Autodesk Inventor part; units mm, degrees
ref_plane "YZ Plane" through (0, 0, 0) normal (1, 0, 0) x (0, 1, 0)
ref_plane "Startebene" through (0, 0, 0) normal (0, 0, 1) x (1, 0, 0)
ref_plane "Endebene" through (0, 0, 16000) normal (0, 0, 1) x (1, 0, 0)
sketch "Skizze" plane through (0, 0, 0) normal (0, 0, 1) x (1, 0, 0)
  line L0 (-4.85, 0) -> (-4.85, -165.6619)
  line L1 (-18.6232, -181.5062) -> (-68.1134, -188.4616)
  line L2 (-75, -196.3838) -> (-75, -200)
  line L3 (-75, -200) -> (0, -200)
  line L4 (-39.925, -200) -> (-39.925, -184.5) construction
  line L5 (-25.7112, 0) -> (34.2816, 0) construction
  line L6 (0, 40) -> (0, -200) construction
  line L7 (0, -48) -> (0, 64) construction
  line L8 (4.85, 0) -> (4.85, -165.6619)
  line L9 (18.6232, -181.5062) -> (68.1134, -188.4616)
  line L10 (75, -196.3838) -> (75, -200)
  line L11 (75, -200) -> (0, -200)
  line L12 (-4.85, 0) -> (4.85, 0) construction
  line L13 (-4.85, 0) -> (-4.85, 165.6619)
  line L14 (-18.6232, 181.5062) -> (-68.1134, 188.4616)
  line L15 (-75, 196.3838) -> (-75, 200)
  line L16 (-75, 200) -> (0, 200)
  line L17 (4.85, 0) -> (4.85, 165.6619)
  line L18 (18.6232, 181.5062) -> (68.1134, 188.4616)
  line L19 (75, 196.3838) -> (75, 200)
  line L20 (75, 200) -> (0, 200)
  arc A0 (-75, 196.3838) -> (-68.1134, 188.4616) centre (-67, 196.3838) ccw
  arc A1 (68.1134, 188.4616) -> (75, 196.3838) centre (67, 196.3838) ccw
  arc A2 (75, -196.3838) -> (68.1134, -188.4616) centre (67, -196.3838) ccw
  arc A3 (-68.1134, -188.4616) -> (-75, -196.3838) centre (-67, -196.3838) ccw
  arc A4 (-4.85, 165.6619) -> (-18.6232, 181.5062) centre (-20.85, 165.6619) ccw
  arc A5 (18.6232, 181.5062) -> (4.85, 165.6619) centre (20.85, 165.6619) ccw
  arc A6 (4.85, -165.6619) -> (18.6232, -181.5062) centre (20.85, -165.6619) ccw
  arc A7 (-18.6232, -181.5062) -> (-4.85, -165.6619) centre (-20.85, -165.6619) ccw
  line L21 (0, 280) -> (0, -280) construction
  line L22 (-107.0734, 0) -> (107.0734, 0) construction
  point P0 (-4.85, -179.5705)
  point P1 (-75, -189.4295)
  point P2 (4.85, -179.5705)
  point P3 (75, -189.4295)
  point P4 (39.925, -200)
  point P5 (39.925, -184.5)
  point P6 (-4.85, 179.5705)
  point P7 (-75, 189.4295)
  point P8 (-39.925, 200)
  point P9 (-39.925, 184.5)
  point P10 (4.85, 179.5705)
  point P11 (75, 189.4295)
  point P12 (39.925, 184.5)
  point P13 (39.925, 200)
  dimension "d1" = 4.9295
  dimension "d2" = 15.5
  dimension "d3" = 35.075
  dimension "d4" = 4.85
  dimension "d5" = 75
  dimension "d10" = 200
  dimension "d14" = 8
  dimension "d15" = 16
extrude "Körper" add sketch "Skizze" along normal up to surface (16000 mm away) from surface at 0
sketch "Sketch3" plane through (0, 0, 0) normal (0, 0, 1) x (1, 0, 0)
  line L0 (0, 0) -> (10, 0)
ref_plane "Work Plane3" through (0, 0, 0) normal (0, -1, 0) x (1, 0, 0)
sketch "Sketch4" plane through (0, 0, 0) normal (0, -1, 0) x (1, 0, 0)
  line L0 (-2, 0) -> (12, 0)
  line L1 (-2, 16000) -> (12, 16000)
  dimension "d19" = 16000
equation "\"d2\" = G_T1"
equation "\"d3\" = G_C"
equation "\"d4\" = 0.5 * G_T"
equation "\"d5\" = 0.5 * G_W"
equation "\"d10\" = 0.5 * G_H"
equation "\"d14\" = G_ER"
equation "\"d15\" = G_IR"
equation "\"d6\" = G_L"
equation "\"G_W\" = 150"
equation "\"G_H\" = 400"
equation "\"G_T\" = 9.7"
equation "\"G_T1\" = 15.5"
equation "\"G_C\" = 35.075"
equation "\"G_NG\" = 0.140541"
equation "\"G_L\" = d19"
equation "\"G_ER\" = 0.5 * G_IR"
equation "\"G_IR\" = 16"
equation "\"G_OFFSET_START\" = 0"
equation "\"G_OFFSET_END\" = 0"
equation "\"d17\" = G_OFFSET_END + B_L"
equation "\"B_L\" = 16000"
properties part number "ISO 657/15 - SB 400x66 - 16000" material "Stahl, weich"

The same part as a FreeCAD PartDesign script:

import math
import FreeCAD as App
import Part
import Sketcher
Q = App.Units.Quantity

doc = App.newDocument("Part")
body = doc.addObject("PartDesign::Body", "Body")

sketch1 = body.newObject("Sketcher::SketchObject", "Sketch")
sketch1.AttachmentSupport = (doc.getObject("XY_Plane"), [""])
sketch1.MapMode = "FlatFace"
sketch1.addGeometry([
    Part.LineSegment(App.Vector(-4.8, 165.7, 0), App.Vector(-4.8, -165.7, 0)),
    Part.ArcOfCircle(Part.Circle(App.Vector(-20.9, -165.7, 0), App.Vector(0, 0, 1), 16), math.radians(-82), math.radians(0)),
    Part.LineSegment(App.Vector(-18.6, -181.5, 0), App.Vector(-68.1, -188.5, 0)),
    Part.ArcOfCircle(Part.Circle(App.Vector(-67, -196.4, 0), App.Vector(0, 0, 1), 8), math.radians(98), math.radians(180)),
    Part.LineSegment(App.Vector(-75, -196.4, 0), App.Vector(-75, -200, 0)),
    Part.LineSegment(App.Vector(-75, -200, 0), App.Vector(75, -200, 0)),
    Part.LineSegment(App.Vector(75, -200, 0), App.Vector(75, -196.4, 0)),
    Part.ArcOfCircle(Part.Circle(App.Vector(67, -196.4, 0), App.Vector(0, 0, 1), 8), math.radians(0), math.radians(82)),
    Part.LineSegment(App.Vector(68.1, -188.5, 0), App.Vector(18.6, -181.5, 0)),
    Part.ArcOfCircle(Part.Circle(App.Vector(20.9, -165.7, 0), App.Vector(0, 0, 1), 16), math.radians(180), math.radians(262)),
    Part.LineSegment(App.Vector(4.8, -165.7, 0), App.Vector(4.8, 165.7, 0)),
    Part.ArcOfCircle(Part.Circle(App.Vector(20.9, 165.7, 0), App.Vector(0, 0, 1), 16), math.radians(98), math.radians(180)),
    Part.LineSegment(App.Vector(18.6, 181.5, 0), App.Vector(68.1, 188.5, 0)),
    Part.ArcOfCircle(Part.Circle(App.Vector(67, 196.4, 0), App.Vector(0, 0, 1), 8), math.radians(-82), math.radians(0)),
    Part.LineSegment(App.Vector(75, 196.4, 0), App.Vector(75, 200, 0)),
    Part.LineSegment(App.Vector(75, 200, 0), App.Vector(-75, 200, 0)),
    Part.LineSegment(App.Vector(-75, 200, 0), App.Vector(-75, 196.4, 0)),
    Part.ArcOfCircle(Part.Circle(App.Vector(-67, 196.4, 0), App.Vector(0, 0, 1), 8), math.radians(180), math.radians(262)),
    Part.LineSegment(App.Vector(-68.1, 188.5, 0), App.Vector(-18.6, 181.5, 0)),
    Part.ArcOfCircle(Part.Circle(App.Vector(-20.9, 165.7, 0), App.Vector(0, 0, 1), 16), math.radians(0), math.radians(82)),
], False)
sketch1.addConstraint([
    Sketcher.Constraint("Tangent", 0, 2, 1, 2),
    Sketcher.Constraint("Tangent", 1, 1, 2, 1),
    Sketcher.Constraint("Tangent", 2, 2, 3, 1),
    Sketcher.Constraint("Tangent", 3, 2, 4, 1),
    Sketcher.Constraint("Coincident", 4, 2, 5, 1),
    Sketcher.Constraint("Coincident", 5, 2, 6, 1),
    Sketcher.Constraint("Tangent", 6, 2, 7, 1),
    Sketcher.Constraint("Tangent", 7, 2, 8, 1),
    Sketcher.Constraint("Tangent", 8, 2, 9, 2),
    Sketcher.Constraint("Tangent", 9, 1, 10, 1),
    Sketcher.Constraint("Tangent", 10, 2, 11, 2),
    Sketcher.Constraint("Tangent", 11, 1, 12, 1),
    Sketcher.Constraint("Tangent", 12, 2, 13, 1),
    Sketcher.Constraint("Tangent", 13, 2, 14, 1),
    Sketcher.Constraint("Coincident", 14, 2, 15, 1),
    Sketcher.Constraint("Coincident", 15, 2, 16, 1),
    Sketcher.Constraint("Tangent", 16, 2, 17, 1),
    Sketcher.Constraint("Tangent", 17, 2, 18, 1),
    Sketcher.Constraint("Tangent", 18, 2, 19, 2),
    Sketcher.Constraint("Tangent", 19, 1, 0, 1),
    Sketcher.Constraint("Vertical", 0),
    Sketcher.Constraint("Vertical", 4),
    Sketcher.Constraint("Horizontal", 5),
    Sketcher.Constraint("Vertical", 6),
    Sketcher.Constraint("Vertical", 10),
    Sketcher.Constraint("Vertical", 14),
    Sketcher.Constraint("Horizontal", 15),
    Sketcher.Constraint("Vertical", 16),
    Sketcher.Constraint("Equal", 3, 7),
    Sketcher.Constraint("Equal", 1, 9),
    Sketcher.Constraint("Equal", 9, 11),
    Sketcher.Constraint("Equal", 7, 13),
    Sketcher.Constraint("Equal", 13, 17),
    Sketcher.Constraint("Equal", 11, 19),
    Sketcher.Constraint("Symmetric", 1, 3, 11, 3, -1, 1),
    Sketcher.Constraint("Symmetric", 3, 3, 13, 3, -1, 1),
    Sketcher.Constraint("Symmetric", 7, 3, 17, 3, -1, 1),
    Sketcher.Constraint("Symmetric", 3, 3, 7, 3, -2),
    Sketcher.Constraint("Parallel", 8, 18),
    Sketcher.Constraint("Horizontal", 1, 3, 9, 3),
    Sketcher.Constraint("Equal", 6, 14),
    Sketcher.Constraint("Radius", 1, 16.0),
    Sketcher.Constraint("Radius", 3, 8.0),
    Sketcher.Constraint("Angle", 12, Q("8 deg")),
    Sketcher.Constraint("DistanceX", 3, 2, -1, 1, 75.0),
    Sketcher.Constraint("DistanceY", 4, 2, -1, 1, 200.0),
    Sketcher.Constraint("DistanceX", 0, 2, -1, 1, 4.85),
    Sketcher.Constraint("DistanceY", 0, 2, 0, 1, 331.3238),
])
pad1 = body.newObject("PartDesign::Pad", "Pad")
pad1.Profile = sketch1
pad1.Length = 16000

doc.recompute()
